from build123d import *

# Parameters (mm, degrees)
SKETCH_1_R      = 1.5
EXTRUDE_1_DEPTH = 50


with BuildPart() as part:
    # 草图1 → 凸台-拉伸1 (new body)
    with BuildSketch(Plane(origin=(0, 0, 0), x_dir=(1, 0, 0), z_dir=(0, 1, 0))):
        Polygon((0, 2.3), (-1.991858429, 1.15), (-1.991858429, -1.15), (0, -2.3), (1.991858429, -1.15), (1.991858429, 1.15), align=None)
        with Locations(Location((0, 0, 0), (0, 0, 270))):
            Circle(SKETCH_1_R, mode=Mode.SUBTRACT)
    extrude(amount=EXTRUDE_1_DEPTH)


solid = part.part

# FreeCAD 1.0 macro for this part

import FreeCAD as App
import Part
import Sketcher
from FreeCAD import Vector
Q = App.Units.Quantity

doc = App.newDocument("Part")
body = doc.addObject("PartDesign::Body", "Body")

sketch1 = body.newObject("Sketcher::SketchObject", "Sketch")
sketch1.AttachmentSupport = (doc.getObject("XZ_Plane"), [""])
sketch1.MapMode = "FlatFace"
sketch1.addGeometry(Part.LineSegment(Vector(0, -2.3, 0), Vector(-2, -1.1, 0)), False)
sketch1.addGeometry(Part.LineSegment(Vector(-2, -1.1, 0), Vector(-2, 1.1, 0)), False)
sketch1.addGeometry(Part.LineSegment(Vector(-2, 1.1, 0), Vector(0, 2.3, 0)), False)
sketch1.addGeometry(Part.LineSegment(Vector(0, 2.3, 0), Vector(2, 1.1, 0)), False)
sketch1.addGeometry(Part.LineSegment(Vector(2, 1.1, 0), Vector(2, -1.1, 0)), False)
sketch1.addGeometry(Part.LineSegment(Vector(2, -1.1, 0), Vector(0, -2.3, 0)), False)
sketch1.addGeometry(Part.Circle(Vector(0, 0, 0), Vector(0, 0, 1), 1.5), False)
sketch1.addConstraint(Sketcher.Constraint("Coincident", 0, 2, 1, 1))
sketch1.addConstraint(Sketcher.Constraint("Coincident", 1, 2, 2, 1))
sketch1.addConstraint(Sketcher.Constraint("Coincident", 2, 2, 3, 1))
sketch1.addConstraint(Sketcher.Constraint("Coincident", 3, 2, 4, 1))
sketch1.addConstraint(Sketcher.Constraint("Coincident", 4, 2, 5, 1))
sketch1.addConstraint(Sketcher.Constraint("Coincident", 5, 2, 0, 1))
sketch1.addConstraint(Sketcher.Constraint("Vertical", 1))
sketch1.addConstraint(Sketcher.Constraint("Vertical", 4))
sketch1.addConstraint(Sketcher.Constraint("Coincident", 6, 3, -1, 1))
sketch1.addConstraint(Sketcher.Constraint("Symmetric", 0, 2, 3, 2, -1, 1))
sketch1.addConstraint(Sketcher.Constraint("Symmetric", 2, 2, 5, 2, -1, 1))
sketch1.addConstraint(Sketcher.Constraint("PointOnObject", 2, 2, -2))
sketch1.addConstraint(Sketcher.Constraint("Parallel", 2, 5))
sketch1.addConstraint(Sketcher.Constraint("Horizontal", 1, 2, 3, 2))
sketch1.addConstraint(Sketcher.Constraint("Diameter", 6, 3.0))
sketch1.addConstraint(Sketcher.Constraint("Angle", 0, Q("150 deg")))
sketch1.addConstraint(Sketcher.Constraint("DistanceY", 1, 1, 1, 2, 2.3))
sketch1.addConstraint(Sketcher.Constraint("Distance", 0, 2.3))
pad1 = body.newObject("PartDesign::Pad", "Pad")
pad1.Profile = sketch1
pad1.Length = 50
pad1.Reversed = True

doc.recompute()
